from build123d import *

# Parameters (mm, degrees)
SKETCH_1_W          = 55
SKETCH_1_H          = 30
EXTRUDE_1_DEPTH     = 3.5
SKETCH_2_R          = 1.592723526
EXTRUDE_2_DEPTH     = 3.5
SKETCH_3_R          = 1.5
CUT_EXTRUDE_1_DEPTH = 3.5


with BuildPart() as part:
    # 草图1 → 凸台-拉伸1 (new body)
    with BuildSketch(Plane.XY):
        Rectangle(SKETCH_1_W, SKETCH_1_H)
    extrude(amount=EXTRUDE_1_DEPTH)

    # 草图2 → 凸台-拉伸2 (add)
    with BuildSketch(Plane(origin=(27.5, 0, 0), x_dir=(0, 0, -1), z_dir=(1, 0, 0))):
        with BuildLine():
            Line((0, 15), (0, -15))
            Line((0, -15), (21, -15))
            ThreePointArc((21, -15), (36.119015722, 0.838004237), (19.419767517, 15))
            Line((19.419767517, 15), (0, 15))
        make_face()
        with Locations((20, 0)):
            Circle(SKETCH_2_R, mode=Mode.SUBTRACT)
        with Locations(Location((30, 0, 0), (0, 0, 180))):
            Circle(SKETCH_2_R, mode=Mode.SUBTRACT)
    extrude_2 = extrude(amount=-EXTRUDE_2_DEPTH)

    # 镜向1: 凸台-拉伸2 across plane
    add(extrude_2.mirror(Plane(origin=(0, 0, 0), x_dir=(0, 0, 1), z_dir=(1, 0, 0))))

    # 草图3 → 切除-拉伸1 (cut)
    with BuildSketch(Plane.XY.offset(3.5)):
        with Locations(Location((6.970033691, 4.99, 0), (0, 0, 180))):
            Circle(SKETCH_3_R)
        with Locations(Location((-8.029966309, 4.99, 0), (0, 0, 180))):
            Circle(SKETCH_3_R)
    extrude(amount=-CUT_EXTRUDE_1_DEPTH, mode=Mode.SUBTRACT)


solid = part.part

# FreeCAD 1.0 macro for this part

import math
import FreeCAD as App
import Part
import Sketcher
Q = App.Units.Quantity

doc = App.newDocument("Part")
params = doc.addObject("Spreadsheet::Sheet", "Params")
for row, (alias, value) in enumerate([
    ("sketch1_width", "55 mm"),
    ("sketch1_height", "30 mm"),
    ("pad1_length", "3.5 mm"),
    ("sketch2_width", "30 mm"),
    ("sketch2_height", "21 mm"),
    ("pad2_length", "3.5 mm"),
    ("sketch3_diameter", "3 mm"),
    ("pocket1_length", "3.5 mm"),
], start=1):
    params.set(f"A{row}", alias)
    params.set(f"B{row}", "=" + value)
    params.setAlias(f"B{row}", alias)

body = doc.addObject("PartDesign::Body", "Body")

# Sketch on XY plane
sketch1 = body.newObject("Sketcher::SketchObject", "Sketch")
sketch1.AttachmentSupport = (doc.getObject("XY_Plane"), [""])
sketch1.MapMode = "FlatFace"
sketch1.addGeometry([
    Part.LineSegment(App.Vector(-28, 15, 0), App.Vector(-28, -15, 0)),
    Part.LineSegment(App.Vector(-28, -15, 0), App.Vector(28, -15, 0)),
    Part.LineSegment(App.Vector(28, -15, 0), App.Vector(28, 15, 0)),
    Part.LineSegment(App.Vector(28, 15, 0), App.Vector(-28, 15, 0)),
], False)
sketch1.addConstraint([
    Sketcher.Constraint("Coincident", 0, 2, 1, 1),
    Sketcher.Constraint("Coincident", 1, 2, 2, 1),
    Sketcher.Constraint("Coincident", 2, 2, 3, 1),
    Sketcher.Constraint("Coincident", 3, 2, 0, 1),
    Sketcher.Constraint("Vertical", 0),
    Sketcher.Constraint("Horizontal", 1),
    Sketcher.Constraint("Vertical", 2),
    Sketcher.Constraint("Horizontal", 3),
    Sketcher.Constraint("Symmetric", 0, 2, 2, 2, -1, 1),
    Sketcher.Constraint("DistanceX", 1, 1, 1, 2, Q("55 mm")),
    Sketcher.Constraint("DistanceY", 0, 2, 0, 1, Q("30 mm")),
])
sketch1.setExpression("Constraints[9]", "Params.sketch1_width")
sketch1.setExpression("Constraints[10]", "Params.sketch1_height")
pad1 = body.newObject("PartDesign::Pad", "Pad")
pad1.Profile = sketch1
pad1.setExpression("Length", "Params.pad1_length")

# Sketch on YZ plane
sketch2 = body.newObject("Sketcher::SketchObject", "Sketch001")
sketch2.AttachmentSupport = (doc.getObject("YZ_Plane"), [""])
sketch2.MapMode = "FlatFace"
sketch2.AttachmentOffset = App.Placement(App.Vector(0, 0, 27.5), App.Rotation())
sketch2.addGeometry([
    Part.LineSegment(App.Vector(15, 0, 0), App.Vector(-15, 0, 0)),  # 0
    Part.LineSegment(App.Vector(-15, 0, 0), App.Vector(-15, -21, 0)),  # 1
    Part.ArcOfCircle(Part.Circle(App.Vector(0, -21.1, 0), App.Vector(0, 0, 1), 15), math.radians(180), math.radians(366)),  # 2
    Part.LineSegment(App.Vector(15, -19.4, 0), App.Vector(15, 0, 0)),  # 3
    Part.Circle(App.Vector(0, -20, 0), App.Vector(0, 0, 1), 1.6),  # 4
    Part.Circle(App.Vector(0, -30, 0), App.Vector(0, 0, 1), 1.6),  # 5
], False)
sketch2.addConstraint([
    Sketcher.Constraint("Coincident", 0, 2, 1, 1),
    Sketcher.Constraint("Coincident", 1, 2, 2, 1),
    Sketcher.Constraint("Coincident", 2, 2, 3, 1),
    Sketcher.Constraint("Coincident", 3, 2, 0, 1),
    Sketcher.Constraint("Horizontal", 0),
    Sketcher.Constraint("Vertical", 1),
    Sketcher.Constraint("Vertical", 3),
    Sketcher.Constraint("Equal", 4, 5),
    Sketcher.Constraint("Symmetric", 0, 2, 3, 2, -1, 1),
    Sketcher.Constraint("PointOnObject", 4, 3, -2),
    Sketcher.Constraint("PointOnObject", 5, 3, -2),
    Sketcher.Constraint("DistanceX", 0, 2, 0, 1, Q("30 mm")),
    Sketcher.Constraint("DistanceY", 1, 2, 1, 1, Q("21 mm")),
    Sketcher.Constraint("DistanceY", 4, 3, -1, 1, Q("20 mm")),
    Sketcher.Constraint("DistanceY", 5, 3, -1, 1, Q("30 mm")),
    Sketcher.Constraint("Diameter", 4, Q("3.185447 mm")),
    Sketcher.Constraint("Radius", 2, Q("15.046807 mm")),
    Sketcher.Constraint("DistanceY", 3, 1, 3, 2, Q("19.419768 mm")),
])
sketch2.setExpression("Constraints[11]", "Params.sketch2_width")
sketch2.setExpression("Constraints[12]", "Params.sketch2_height")
pad2 = body.newObject("PartDesign::Pad", "Pad001")
pad2.Profile = sketch2
pad2.setExpression("Length", "Params.pad2_length")
pad2.Reversed = True
doc.recompute()

mirrored = body.newObject("PartDesign::Mirrored", "Mirrored")
mirrored.Originals = [pad2]
mirrored.MirrorPlane = (doc.getObject("YZ_Plane"), [""])
body.Tip = mirrored

# Sketch on XY plane
sketch3 = body.newObject("Sketcher::SketchObject", "Sketch002")
sketch3.AttachmentSupport = (doc.getObject("XY_Plane"), [""])
sketch3.MapMode = "FlatFace"
sketch3.AttachmentOffset = App.Placement(App.Vector(0, 0, 3.5), App.Rotation())
sketch3.addGeometry([
    Part.Circle(App.Vector(7, 5, 0), App.Vector(0, 0, 1), 1.5),
    Part.Circle(App.Vector(-8, 5, 0), App.Vector(0, 0, 1), 1.5),
], False)
sketch3.addConstraint([
    Sketcher.Constraint("Equal", 0, 1),
    Sketcher.Constraint("Horizontal", 0, 3, 1, 3),
    Sketcher.Constraint("Diameter", 0, Q("3 mm")),
    Sketcher.Constraint("DistanceX", 1, 3, 0, 3, Q("15 mm")),
    Sketcher.Constraint("DistanceY", -1, 1, 0, 3, Q("4.99 mm")),
    Sketcher.Constraint("DistanceX", -1, 1, 0, 3, Q("6.970034 mm")),
])
sketch3.setExpression("Constraints[2]", "Params.sketch3_diameter")
pocket1 = body.newObject("PartDesign::Pocket", "Pocket")
pocket1.Profile = sketch3
pocket1.setExpression("Length", "Params.pocket1_length")

doc.recompute()
